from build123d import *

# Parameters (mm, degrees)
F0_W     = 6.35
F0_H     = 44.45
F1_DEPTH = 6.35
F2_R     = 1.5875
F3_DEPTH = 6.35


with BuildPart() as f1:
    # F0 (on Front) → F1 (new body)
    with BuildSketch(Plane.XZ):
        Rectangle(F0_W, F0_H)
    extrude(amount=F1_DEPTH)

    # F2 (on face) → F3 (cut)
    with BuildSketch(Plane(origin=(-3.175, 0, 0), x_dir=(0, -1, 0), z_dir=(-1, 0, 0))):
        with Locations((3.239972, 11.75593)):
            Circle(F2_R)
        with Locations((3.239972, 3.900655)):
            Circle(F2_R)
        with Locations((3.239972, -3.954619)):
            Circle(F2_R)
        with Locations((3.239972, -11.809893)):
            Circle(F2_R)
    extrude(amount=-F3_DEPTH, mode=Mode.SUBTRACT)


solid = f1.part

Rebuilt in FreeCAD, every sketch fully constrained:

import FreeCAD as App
import Part
import Sketcher
from FreeCAD import Vector
Q = App.Units.Quantity


def add_polygon(sketch, points):
    """Adds a closed chain of lines whose ends are joined by coincident constraints."""
    first, n = sketch.GeometryCount, len(points)
    for a, b in zip(points, points[1:] + points[:1]):
        sketch.addGeometry(Part.LineSegment(App.Vector(*a, 0), App.Vector(*b, 0)), False)
    for i in range(n):
        sketch.addConstraint(Sketcher.Constraint("Coincident", first + i, 2, first + (i + 1) % n, 1))

doc = App.newDocument("Part")
body = doc.addObject("PartDesign::Body", "Body")

# Sketch on XZ plane
sketch1 = body.newObject("Sketcher::SketchObject", "Sketch")
sketch1.AttachmentSupport = (doc.getObject("XZ_Plane"), [""])
sketch1.MapMode = "FlatFace"
add_polygon(sketch1, [(-3.175, 22.225), (-3.175, -22.225), (3.175, -22.225), (3.175, 22.225)])  # lines 0-3
sketch1.addConstraint([
    Sketcher.Constraint("Vertical", 0),
    Sketcher.Constraint("Horizontal", 1),
    Sketcher.Constraint("Vertical", 2),
    Sketcher.Constraint("Horizontal", 3),
    Sketcher.Constraint("Symmetric", 0, 2, 2, 2, -1, 1),
    Sketcher.Constraint("DistanceX", 1, 1, 1, 2, Q("0.25 in")),
    Sketcher.Constraint("DistanceY", 0, 2, 0, 1, Q("1.75 in")),
])
pad1 = body.newObject("PartDesign::Pad", "Pad")
pad1.Profile = sketch1
pad1.Length = Q("0.25 in")

# Sketch on YZ plane
sketch2 = body.newObject("Sketcher::SketchObject", "Sketch001")
sketch2.AttachmentSupport = (doc.getObject("YZ_Plane"), [""])
sketch2.MapMode = "FlatFace"
sketch2.AttachmentOffset = App.Placement(Vector(0, 0, -0.125 * 25.4), App.Rotation())
sketch2.addGeometry([
    Part.Circle(Vector(-3.239972, 11.75593, 0), Vector(0, 0, 1), 1.5875),
    Part.Circle(Vector(-3.239972, 3.900655, 0), Vector(0, 0, 1), 1.5875),
    Part.Circle(Vector(-3.239972, -3.954619, 0), Vector(0, 0, 1), 1.5875),
    Part.Circle(Vector(-3.239972, -11.809893, 0), Vector(0, 0, 1), 1.5875),
], False)
sketch2.addConstraint([
    Sketcher.Constraint("Equal", 0, 1),
    Sketcher.Constraint("Equal", 1, 2),
    Sketcher.Constraint("Equal", 2, 3),
    Sketcher.Constraint("Vertical", 0, 3, 1, 3),
    Sketcher.Constraint("Vertical", 1, 3, 2, 3),
    Sketcher.Constraint("Vertical", 2, 3, 3, 3),
    Sketcher.Constraint("Diameter", 0, Q("0.125 in")),
    Sketcher.Constraint("DistanceX", 0, 3, -1, 1, Q("3.239972 mm")),
    Sketcher.Constraint("DistanceY", -1, 1, 0, 3, Q("11.75593 mm")),
    Sketcher.Constraint("DistanceY", 2, 3, -1, 1, Q("3.954619 mm")),
    Sketcher.Constraint("DistanceY", 3, 3, 1, 3, Q("15.710548 mm")),
    Sketcher.Constraint("DistanceY", -1, 1, 1, 3, Q("3.900655 mm")),
])
pocket1 = body.newObject("PartDesign::Pocket", "Pocket")
pocket1.Profile = sketch2
pocket1.Length = Q("0.25 in")
pocket1.Reversed = True

doc.recompute()
